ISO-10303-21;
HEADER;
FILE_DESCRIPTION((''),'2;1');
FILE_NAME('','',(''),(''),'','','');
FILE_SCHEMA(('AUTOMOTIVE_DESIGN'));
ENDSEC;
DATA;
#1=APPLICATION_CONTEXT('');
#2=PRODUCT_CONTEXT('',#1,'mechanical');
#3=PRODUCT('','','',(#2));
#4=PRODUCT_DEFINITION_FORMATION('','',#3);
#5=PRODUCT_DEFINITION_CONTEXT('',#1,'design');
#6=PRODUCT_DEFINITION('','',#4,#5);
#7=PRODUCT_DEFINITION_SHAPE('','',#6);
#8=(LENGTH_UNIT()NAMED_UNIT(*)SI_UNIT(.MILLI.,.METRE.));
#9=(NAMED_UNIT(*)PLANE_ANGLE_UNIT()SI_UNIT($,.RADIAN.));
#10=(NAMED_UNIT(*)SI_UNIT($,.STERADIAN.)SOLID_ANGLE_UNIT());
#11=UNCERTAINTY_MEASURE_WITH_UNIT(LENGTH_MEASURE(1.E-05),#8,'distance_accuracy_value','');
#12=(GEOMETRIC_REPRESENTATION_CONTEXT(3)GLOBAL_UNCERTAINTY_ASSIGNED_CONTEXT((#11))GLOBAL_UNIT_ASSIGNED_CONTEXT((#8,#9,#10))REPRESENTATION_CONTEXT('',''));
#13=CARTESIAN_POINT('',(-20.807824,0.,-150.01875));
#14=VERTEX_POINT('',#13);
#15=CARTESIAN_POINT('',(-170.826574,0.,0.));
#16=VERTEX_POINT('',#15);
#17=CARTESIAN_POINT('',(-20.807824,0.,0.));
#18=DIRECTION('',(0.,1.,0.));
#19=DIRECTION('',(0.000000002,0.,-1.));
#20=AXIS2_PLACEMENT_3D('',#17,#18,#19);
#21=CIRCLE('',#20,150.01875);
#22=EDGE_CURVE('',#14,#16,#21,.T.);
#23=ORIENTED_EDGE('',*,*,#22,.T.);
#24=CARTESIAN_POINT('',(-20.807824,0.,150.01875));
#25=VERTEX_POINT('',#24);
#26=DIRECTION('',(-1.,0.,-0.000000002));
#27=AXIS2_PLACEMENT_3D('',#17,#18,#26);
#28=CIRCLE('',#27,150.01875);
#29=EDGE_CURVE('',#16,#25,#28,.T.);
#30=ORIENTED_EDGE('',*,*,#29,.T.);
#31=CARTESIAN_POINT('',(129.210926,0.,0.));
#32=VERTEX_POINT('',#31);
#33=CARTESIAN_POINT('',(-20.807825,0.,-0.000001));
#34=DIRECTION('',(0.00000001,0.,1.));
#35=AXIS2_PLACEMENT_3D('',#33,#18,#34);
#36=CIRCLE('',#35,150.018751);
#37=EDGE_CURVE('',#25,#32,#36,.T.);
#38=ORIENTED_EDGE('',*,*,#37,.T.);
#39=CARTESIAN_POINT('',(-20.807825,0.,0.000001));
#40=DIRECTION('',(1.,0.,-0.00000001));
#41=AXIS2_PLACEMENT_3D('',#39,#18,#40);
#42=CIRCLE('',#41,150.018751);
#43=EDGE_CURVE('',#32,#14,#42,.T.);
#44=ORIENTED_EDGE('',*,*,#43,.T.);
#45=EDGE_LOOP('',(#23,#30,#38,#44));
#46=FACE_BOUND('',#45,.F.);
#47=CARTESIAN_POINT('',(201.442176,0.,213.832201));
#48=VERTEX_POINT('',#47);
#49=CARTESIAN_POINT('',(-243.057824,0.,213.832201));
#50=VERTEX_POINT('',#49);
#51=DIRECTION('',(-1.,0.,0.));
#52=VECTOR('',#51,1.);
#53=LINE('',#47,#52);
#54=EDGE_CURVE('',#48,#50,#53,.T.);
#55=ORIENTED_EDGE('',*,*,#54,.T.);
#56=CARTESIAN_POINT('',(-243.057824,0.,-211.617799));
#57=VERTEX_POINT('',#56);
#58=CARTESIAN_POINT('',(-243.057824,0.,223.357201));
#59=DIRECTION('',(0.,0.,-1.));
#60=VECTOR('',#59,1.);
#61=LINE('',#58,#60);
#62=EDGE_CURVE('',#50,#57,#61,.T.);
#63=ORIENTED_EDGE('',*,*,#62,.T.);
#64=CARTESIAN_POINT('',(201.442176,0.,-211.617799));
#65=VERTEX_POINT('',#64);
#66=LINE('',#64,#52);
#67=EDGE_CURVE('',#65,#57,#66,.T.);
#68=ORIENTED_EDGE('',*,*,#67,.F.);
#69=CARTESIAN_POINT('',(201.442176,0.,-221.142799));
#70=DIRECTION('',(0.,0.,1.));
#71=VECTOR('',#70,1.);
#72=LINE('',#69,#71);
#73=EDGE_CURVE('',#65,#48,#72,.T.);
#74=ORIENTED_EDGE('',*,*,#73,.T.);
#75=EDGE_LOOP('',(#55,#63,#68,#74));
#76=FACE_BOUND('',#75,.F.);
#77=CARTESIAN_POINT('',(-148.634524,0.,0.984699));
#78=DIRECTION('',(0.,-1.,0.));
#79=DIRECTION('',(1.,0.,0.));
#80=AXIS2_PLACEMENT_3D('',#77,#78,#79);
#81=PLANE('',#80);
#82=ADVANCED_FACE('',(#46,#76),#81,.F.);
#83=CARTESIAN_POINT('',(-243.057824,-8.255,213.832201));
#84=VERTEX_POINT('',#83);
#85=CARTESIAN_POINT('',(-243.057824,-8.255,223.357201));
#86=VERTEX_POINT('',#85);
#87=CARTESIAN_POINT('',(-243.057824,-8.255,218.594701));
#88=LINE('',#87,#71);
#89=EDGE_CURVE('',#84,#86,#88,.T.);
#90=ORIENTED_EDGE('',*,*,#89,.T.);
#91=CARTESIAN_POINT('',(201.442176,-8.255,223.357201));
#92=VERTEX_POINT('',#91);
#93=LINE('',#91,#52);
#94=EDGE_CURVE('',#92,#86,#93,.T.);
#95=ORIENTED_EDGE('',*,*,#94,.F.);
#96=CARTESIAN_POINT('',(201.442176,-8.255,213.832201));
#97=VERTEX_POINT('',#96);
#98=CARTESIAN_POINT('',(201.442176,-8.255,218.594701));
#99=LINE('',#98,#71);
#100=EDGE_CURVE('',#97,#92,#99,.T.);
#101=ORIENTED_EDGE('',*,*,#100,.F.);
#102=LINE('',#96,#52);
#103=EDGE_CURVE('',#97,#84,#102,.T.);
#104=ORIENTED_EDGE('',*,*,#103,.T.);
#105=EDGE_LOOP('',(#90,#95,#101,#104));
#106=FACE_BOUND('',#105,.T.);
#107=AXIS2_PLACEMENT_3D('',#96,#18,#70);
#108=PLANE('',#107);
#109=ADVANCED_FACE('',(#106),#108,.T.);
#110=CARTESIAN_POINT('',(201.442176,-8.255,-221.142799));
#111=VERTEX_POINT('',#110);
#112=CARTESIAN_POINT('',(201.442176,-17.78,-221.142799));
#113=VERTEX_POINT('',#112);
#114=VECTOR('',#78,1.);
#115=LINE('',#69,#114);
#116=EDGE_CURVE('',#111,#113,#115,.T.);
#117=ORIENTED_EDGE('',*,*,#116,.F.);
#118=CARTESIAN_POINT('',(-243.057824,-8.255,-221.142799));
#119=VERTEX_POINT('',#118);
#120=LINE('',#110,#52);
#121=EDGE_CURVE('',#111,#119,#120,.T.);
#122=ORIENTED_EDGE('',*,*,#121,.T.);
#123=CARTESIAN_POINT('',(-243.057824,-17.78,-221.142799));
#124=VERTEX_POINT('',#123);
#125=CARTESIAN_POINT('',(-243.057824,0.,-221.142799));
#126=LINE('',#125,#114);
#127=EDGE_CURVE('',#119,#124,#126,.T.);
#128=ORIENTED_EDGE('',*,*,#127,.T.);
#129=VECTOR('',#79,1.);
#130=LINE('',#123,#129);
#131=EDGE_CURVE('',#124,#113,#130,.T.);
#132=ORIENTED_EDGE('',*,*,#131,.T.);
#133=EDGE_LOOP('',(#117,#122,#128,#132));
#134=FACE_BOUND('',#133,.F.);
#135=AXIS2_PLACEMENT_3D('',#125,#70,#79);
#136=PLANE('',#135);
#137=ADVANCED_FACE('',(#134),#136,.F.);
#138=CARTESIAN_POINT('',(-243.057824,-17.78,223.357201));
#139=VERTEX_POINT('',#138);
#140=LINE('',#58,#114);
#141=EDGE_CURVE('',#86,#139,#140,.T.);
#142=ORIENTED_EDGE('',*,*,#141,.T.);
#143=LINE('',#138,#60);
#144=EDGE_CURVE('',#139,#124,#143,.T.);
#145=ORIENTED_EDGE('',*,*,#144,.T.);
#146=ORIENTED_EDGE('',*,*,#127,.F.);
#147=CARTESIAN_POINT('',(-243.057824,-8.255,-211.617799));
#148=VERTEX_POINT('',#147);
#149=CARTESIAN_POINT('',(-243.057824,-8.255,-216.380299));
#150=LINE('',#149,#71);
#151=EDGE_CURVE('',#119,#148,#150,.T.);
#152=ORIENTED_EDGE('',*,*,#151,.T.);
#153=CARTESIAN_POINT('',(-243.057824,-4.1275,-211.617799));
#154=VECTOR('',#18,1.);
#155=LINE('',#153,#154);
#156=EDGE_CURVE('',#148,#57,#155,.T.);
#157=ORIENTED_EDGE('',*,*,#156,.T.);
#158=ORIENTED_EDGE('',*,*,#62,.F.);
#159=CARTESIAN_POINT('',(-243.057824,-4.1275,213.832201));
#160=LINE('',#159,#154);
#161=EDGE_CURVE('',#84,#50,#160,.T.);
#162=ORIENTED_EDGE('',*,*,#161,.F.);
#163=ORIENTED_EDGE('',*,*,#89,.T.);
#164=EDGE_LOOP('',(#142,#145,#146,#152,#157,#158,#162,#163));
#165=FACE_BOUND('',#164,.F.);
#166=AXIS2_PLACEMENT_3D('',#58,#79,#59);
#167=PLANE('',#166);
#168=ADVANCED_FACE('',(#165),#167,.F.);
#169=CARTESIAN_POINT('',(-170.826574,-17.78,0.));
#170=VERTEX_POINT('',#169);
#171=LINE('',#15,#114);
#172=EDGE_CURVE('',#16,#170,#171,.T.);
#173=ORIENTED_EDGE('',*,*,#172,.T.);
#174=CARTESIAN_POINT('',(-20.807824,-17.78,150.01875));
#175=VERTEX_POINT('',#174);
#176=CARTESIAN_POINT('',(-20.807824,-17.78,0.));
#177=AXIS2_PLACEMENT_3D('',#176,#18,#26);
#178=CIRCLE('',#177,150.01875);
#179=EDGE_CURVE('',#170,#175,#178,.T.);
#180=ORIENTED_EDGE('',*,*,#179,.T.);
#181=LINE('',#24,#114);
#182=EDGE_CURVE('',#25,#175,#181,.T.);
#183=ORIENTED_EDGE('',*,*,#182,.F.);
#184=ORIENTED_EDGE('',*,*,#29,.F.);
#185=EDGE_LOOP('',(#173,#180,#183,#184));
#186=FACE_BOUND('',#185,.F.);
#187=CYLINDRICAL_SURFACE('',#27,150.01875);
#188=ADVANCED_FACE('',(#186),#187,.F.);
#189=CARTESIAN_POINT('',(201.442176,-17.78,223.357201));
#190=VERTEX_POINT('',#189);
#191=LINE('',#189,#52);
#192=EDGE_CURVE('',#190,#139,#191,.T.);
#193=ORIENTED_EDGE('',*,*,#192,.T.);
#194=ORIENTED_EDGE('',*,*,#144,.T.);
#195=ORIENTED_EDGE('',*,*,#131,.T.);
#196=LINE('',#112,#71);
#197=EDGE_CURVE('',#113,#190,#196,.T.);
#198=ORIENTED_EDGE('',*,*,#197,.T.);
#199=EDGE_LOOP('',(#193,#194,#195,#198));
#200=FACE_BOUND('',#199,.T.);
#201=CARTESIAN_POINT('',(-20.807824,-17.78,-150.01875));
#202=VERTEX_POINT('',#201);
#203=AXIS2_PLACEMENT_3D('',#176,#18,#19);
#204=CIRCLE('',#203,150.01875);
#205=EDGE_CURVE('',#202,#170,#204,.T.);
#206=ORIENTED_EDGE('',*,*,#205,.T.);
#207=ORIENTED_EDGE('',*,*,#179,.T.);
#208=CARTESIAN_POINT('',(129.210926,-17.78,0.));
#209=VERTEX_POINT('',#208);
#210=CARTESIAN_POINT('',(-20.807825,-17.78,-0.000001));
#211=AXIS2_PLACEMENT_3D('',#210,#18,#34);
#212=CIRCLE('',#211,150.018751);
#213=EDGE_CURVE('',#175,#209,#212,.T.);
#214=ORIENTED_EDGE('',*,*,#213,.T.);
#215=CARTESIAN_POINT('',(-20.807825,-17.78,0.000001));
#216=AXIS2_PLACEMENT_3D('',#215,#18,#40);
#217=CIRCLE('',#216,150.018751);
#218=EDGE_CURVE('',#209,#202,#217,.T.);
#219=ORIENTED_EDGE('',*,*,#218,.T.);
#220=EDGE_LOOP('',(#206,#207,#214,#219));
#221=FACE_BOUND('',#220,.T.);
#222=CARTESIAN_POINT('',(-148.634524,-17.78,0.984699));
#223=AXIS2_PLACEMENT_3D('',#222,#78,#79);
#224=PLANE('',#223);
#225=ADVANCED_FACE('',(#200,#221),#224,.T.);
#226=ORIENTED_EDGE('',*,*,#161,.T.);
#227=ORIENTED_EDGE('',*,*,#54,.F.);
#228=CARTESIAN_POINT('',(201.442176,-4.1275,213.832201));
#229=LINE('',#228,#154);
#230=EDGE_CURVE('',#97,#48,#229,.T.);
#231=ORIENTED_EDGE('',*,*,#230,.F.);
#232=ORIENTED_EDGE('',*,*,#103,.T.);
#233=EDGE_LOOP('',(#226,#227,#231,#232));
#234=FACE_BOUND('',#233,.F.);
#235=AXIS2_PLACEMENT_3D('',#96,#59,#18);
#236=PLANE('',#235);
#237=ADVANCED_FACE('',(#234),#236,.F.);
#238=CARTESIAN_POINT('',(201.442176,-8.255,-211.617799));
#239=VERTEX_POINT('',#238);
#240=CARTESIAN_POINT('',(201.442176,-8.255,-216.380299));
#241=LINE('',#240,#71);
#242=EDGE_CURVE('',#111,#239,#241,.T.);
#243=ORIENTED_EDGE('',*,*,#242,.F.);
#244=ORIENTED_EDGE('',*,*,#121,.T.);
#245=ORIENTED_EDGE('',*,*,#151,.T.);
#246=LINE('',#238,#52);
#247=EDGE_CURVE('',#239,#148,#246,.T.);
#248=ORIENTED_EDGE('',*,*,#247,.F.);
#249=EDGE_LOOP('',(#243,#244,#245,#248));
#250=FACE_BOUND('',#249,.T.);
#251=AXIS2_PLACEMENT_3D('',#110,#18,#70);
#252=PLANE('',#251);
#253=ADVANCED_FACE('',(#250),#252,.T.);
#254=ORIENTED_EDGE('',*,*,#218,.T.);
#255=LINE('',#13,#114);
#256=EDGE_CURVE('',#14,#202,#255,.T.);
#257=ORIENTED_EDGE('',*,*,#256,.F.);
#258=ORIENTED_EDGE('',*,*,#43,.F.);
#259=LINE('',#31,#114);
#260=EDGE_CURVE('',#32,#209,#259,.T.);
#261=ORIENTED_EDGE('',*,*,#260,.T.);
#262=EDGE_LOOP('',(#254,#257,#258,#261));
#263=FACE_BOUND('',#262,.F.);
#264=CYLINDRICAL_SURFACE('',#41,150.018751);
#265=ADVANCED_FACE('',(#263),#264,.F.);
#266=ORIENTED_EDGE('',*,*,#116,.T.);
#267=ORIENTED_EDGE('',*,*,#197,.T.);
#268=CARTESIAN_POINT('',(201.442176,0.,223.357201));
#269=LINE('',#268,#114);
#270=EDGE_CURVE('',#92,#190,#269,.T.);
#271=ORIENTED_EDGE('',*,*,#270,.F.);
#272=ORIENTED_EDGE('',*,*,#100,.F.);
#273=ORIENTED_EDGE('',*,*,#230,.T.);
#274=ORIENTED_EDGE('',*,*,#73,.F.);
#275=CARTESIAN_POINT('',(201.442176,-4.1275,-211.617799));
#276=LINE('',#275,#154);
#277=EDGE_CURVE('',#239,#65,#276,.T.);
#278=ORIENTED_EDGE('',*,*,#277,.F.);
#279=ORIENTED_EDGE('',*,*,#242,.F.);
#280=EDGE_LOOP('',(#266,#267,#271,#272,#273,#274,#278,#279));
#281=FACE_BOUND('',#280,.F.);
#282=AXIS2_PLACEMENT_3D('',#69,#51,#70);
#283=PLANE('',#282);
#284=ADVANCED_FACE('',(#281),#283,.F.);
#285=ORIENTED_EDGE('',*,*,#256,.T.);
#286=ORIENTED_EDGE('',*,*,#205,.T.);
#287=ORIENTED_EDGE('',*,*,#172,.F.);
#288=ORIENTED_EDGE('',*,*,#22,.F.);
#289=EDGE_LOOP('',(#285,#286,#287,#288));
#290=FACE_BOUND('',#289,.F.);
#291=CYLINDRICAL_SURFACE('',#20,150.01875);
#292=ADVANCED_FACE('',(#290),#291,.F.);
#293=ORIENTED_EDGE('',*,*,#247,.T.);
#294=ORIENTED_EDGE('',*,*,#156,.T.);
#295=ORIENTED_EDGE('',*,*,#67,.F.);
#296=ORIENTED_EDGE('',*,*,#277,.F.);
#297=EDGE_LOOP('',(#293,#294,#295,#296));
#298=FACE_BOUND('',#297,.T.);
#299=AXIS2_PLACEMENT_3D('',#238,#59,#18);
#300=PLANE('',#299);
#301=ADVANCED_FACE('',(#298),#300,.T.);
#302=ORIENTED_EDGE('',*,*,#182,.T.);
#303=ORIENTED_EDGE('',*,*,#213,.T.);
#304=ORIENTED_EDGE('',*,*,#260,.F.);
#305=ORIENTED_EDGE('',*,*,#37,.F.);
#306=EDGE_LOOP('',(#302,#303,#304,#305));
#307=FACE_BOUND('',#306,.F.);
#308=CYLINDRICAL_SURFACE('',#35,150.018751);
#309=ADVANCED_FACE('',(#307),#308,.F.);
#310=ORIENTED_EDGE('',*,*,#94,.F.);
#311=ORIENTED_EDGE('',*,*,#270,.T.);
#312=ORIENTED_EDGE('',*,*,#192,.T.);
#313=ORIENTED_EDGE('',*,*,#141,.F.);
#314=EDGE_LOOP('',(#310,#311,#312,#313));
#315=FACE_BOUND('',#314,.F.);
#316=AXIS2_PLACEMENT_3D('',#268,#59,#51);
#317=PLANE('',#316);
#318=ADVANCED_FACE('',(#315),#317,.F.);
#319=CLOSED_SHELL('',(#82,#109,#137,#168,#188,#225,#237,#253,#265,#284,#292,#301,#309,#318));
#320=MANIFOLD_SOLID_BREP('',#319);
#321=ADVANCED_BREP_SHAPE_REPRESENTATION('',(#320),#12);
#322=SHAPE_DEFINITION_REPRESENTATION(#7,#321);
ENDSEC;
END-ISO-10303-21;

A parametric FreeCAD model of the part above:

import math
import FreeCAD as App
import Part
import Sketcher
from FreeCAD import Vector
Q = App.Units.Quantity


def add_polygon(sketch, points):
    """Adds a closed chain of lines whose ends are joined by coincident constraints."""
    first, n = sketch.GeometryCount, len(points)
    for a, b in zip(points, points[1:] + points[:1]):
        sketch.addGeometry(Part.LineSegment(App.Vector(*a, 0), App.Vector(*b, 0)), False)
    for i in range(n):
        sketch.addConstraint(Sketcher.Constraint("Coincident", first + i, 2, first + (i + 1) % n, 1))

doc = App.newDocument("Part")
body = doc.addObject("PartDesign::Body", "Body")

sketch1 = body.newObject("Sketcher::SketchObject", "Sketch")
sketch1.AttachmentSupport = (doc.getObject("XZ_Plane"), [""])
sketch1.MapMode = "FlatFace"
add_polygon(sketch1, [(-243, 223), (-243, -221), (201, -221), (201, 223)])
sketch1.addGeometry(Part.ArcOfCircle(Part.Circle(Vector(-21, 0, 0), Vector(0, 0, 1), 150), math.radians(180), math.radians(270)), False)
sketch1.addGeometry(Part.ArcOfCircle(Part.Circle(Vector(-21, 0, 0), Vector(0, 0, 1), 150), math.radians(90), math.radians(180)), False)
sketch1.addGeometry(Part.ArcOfCircle(Part.Circle(Vector(-21, 0, 0), Vector(0, 0, 1), 150), math.radians(0), math.radians(90)), False)
sketch1.addGeometry(Part.ArcOfCircle(Part.Circle(Vector(-21, 0, 0), Vector(0, 0, 1), 150), math.radians(-90), math.radians(0)), False)
sketch1.addConstraint(Sketcher.Constraint("Tangent", 4, 1, 5, 2))
sketch1.addConstraint(Sketcher.Constraint("Tangent", 5, 1, 6, 2))
sketch1.addConstraint(Sketcher.Constraint("Tangent", 6, 1, 7, 2))
sketch1.addConstraint(Sketcher.Constraint("Tangent", 7, 1, 4, 2))
sketch1.addConstraint(Sketcher.Constraint("Vertical", 0))
sketch1.addConstraint(Sketcher.Constraint("Horizontal", 1))
sketch1.addConstraint(Sketcher.Constraint("Vertical", 2))
sketch1.addConstraint(Sketcher.Constraint("Horizontal", 3))
sketch1.addConstraint(Sketcher.Constraint("Equal", 4, 5))
sketch1.addConstraint(Sketcher.Constraint("Symmetric", 5, 1, 7, 1, -1))
sketch1.addConstraint(Sketcher.Constraint("PointOnObject", 4, 1, -1))
sketch1.addConstraint(Sketcher.Constraint("PointOnObject", 6, 1, -1))
sketch1.addConstraint(Sketcher.Constraint("Vertical", 7, 3, 5, 1))
sketch1.addConstraint(Sketcher.Constraint("Equal", 3, 0))
sketch1.addConstraint(Sketcher.Constraint("DistanceX", 1, 1, 1, 2, Q("17.5 in")))
sketch1.addConstraint(Sketcher.Constraint("Radius", 4, Q("5.90625 in")))
sketch1.addConstraint(Sketcher.Constraint("DistanceX", 0, 2, 6, 3, Q("8.7499999 in")))
sketch1.addConstraint(Sketcher.Constraint("DistanceY", 0, 2, -1, 1, Q("221.142799 mm")))
sketch1.addConstraint(Sketcher.Constraint("DistanceX", 4, 3, -1, 1, Q("20.807824 mm")))
pad1 = body.newObject("PartDesign::Pad", "Pad")
pad1.Profile = sketch1
pad1.Length = Q("0.7 in")

sketch2 = body.newObject("Sketcher::SketchObject", "Sketch001")
sketch2.AttachmentSupport = (doc.getObject("YZ_Plane"), [""])
sketch2.MapMode = "FlatFace"
sketch2.AttachmentOffset = App.Placement(Vector(0, 0, 201.442176), App.Rotation())
add_polygon(sketch2, [(-8, 223), (-8, 214), (0, 214), (0, 223)])
add_polygon(sketch2, [(-8, -212), (-8, -221), (0, -221), (0, -212)])
sketch2.addConstraint(Sketcher.Constraint("Vertical", 0))
sketch2.addConstraint(Sketcher.Constraint("Horizontal", 1))
sketch2.addConstraint(Sketcher.Constraint("Vertical", 2))
sketch2.addConstraint(Sketcher.Constraint("Horizontal", 3))
sketch2.addConstraint(Sketcher.Constraint("Vertical", 4))
sketch2.addConstraint(Sketcher.Constraint("Horizontal", 5))
sketch2.addConstraint(Sketcher.Constraint("Vertical", 6))
sketch2.addConstraint(Sketcher.Constraint("Horizontal", 7))
sketch2.addConstraint(Sketcher.Constraint("PointOnObject", 1, 2, -2))
sketch2.addConstraint(Sketcher.Constraint("PointOnObject", 5, 2, -2))
sketch2.addConstraint(Sketcher.Constraint("Vertical", 3, 2, 4, 2))
sketch2.addConstraint(Sketcher.Constraint("Equal", 2, 4))
sketch2.addConstraint(Sketcher.Constraint("DistanceY", 4, 2, 3, 2, Q("17.5 in")))
sketch2.addConstraint(Sketcher.Constraint("DistanceX", 1, 1, 1, 2, Q("0.325 in")))
sketch2.addConstraint(Sketcher.Constraint("DistanceY", 0, 2, 0, 1, Q("0.375 in")))
sketch2.addConstraint(Sketcher.Constraint("DistanceY", -1, 1, 0, 2, Q("213.832201 mm")))
pocket1 = body.newObject("PartDesign::Pocket", "Pocket")
pocket1.Profile = sketch2
pocket1.Length = Q("17.5 in")

doc.recompute()
